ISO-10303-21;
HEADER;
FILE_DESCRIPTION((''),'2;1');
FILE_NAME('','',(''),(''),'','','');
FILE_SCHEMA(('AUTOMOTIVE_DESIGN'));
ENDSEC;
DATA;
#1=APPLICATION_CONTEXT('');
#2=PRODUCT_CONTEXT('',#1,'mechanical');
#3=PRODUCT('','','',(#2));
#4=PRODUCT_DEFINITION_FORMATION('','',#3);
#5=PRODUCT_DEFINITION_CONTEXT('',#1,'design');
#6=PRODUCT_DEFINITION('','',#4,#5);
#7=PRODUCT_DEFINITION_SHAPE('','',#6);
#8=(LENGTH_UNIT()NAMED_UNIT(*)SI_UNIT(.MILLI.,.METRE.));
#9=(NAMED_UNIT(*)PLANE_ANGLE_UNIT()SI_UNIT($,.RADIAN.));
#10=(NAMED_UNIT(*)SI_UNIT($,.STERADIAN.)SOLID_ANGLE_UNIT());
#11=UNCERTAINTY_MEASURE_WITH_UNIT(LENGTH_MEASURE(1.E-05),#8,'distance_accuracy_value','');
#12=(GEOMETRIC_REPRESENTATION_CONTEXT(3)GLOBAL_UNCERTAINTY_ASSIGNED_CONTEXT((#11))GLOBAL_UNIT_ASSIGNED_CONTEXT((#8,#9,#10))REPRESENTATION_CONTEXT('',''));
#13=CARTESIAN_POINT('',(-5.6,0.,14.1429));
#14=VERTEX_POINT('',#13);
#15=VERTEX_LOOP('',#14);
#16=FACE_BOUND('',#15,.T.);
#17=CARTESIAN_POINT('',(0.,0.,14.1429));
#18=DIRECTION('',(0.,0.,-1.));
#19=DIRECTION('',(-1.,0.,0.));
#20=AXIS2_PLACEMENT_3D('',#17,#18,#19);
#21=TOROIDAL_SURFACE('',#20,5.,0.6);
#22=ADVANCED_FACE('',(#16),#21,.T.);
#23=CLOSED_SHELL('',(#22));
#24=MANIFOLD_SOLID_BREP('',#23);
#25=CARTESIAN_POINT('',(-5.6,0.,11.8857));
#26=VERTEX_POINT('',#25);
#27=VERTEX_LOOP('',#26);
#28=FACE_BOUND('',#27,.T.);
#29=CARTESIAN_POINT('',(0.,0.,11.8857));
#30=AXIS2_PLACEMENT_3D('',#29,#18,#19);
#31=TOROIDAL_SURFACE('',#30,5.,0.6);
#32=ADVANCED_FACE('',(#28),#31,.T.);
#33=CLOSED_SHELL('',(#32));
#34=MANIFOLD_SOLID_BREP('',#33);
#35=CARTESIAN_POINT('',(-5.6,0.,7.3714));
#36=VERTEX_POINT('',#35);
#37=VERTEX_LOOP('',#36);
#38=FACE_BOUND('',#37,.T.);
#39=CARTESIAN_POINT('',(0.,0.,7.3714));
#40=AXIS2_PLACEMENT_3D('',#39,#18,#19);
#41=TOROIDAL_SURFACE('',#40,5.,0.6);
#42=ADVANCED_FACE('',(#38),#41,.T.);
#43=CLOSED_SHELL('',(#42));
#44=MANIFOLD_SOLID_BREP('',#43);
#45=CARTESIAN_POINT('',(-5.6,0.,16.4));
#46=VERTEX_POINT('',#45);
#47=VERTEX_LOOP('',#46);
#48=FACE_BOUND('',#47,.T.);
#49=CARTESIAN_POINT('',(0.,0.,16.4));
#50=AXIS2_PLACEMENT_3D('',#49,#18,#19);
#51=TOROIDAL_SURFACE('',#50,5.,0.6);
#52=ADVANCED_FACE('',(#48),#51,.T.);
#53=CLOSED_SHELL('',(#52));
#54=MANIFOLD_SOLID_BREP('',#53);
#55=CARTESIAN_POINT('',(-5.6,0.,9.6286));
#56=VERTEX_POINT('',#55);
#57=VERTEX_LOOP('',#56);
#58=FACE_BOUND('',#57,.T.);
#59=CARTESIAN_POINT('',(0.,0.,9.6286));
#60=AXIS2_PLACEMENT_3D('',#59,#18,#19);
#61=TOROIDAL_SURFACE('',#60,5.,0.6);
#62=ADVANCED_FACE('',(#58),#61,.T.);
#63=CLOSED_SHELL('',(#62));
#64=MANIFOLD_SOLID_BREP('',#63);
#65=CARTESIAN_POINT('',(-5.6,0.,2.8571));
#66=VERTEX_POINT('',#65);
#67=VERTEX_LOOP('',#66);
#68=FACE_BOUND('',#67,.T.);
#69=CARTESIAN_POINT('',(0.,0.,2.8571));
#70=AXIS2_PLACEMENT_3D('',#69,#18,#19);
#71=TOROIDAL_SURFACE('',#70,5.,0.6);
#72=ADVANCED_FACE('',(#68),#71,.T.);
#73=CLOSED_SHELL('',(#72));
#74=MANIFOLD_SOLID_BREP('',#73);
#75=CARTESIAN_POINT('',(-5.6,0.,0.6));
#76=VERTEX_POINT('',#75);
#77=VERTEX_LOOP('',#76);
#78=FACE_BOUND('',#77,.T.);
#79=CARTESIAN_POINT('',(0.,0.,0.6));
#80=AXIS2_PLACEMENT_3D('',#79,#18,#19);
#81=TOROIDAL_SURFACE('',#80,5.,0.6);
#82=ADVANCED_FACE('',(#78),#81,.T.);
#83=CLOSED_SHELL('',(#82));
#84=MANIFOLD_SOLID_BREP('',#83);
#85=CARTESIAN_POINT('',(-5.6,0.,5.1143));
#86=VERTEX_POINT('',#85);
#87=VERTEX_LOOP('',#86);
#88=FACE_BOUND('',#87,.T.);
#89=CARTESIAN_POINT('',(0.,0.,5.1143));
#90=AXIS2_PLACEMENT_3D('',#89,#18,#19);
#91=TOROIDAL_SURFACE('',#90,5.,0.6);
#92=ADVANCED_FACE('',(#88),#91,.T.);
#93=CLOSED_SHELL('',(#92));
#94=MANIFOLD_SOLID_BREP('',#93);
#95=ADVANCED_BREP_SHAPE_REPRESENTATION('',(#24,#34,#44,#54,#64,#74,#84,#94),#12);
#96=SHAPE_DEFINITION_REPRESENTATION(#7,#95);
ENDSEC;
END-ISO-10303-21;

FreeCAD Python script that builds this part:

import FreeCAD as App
import Part
import Sketcher
Q = App.Units.Quantity

doc = App.newDocument("Part")
body = doc.addObject("PartDesign::Body", "Body")
body.AllowCompound = True

sketch1 = doc.addObject("Sketcher::SketchObject", "Sketch")
body.addObject(sketch1)
sketch1.AttachmentSupport = (doc.XZ_Plane, [""])
sketch1.MapMode = "FlatFace"
sketch1.addGeometry([
    Part.Circle(App.Vector(5, 0.6, 0), App.Vector(0, 0, 1), 0.6),
    Part.Circle(App.Vector(5, 2.9, 0), App.Vector(0, 0, 1), 0.6),
    Part.Circle(App.Vector(5, 5.1, 0), App.Vector(0, 0, 1), 0.6),
    Part.Circle(App.Vector(5, 7.4, 0), App.Vector(0, 0, 1), 0.6),
    Part.Circle(App.Vector(5, 9.6, 0), App.Vector(0, 0, 1), 0.6),
    Part.Circle(App.Vector(5, 11.9, 0), App.Vector(0, 0, 1), 0.6),
    Part.Circle(App.Vector(5, 14.1, 0), App.Vector(0, 0, 1), 0.6),
    Part.Circle(App.Vector(5, 16.4, 0), App.Vector(0, 0, 1), 0.6),
], False)
sketch1.addConstraint([
    Sketcher.Constraint("Equal", 0, 1),
    Sketcher.Constraint("Equal", 1, 2),
    Sketcher.Constraint("Equal", 2, 3),
    Sketcher.Constraint("Equal", 3, 4),
    Sketcher.Constraint("Equal", 4, 5),
    Sketcher.Constraint("Equal", 5, 6),
    Sketcher.Constraint("Equal", 6, 7),
    Sketcher.Constraint("Vertical", 0, 3, 1, 3),
    Sketcher.Constraint("Vertical", 1, 3, 2, 3),
    Sketcher.Constraint("Vertical", 2, 3, 3, 3),
    Sketcher.Constraint("Vertical", 3, 3, 4, 3),
    Sketcher.Constraint("Vertical", 4, 3, 5, 3),
    Sketcher.Constraint("Vertical", 5, 3, 6, 3),
    Sketcher.Constraint("Vertical", 6, 3, 7, 3),
    Sketcher.Constraint("Diameter", 0, Q("1.2 mm")),
    Sketcher.Constraint("DistanceX", -1, 1, 0, 3, Q("5 mm")),
    Sketcher.Constraint("DistanceY", -1, 1, 0, 3, Q("0.6 mm")),
    Sketcher.Constraint("DistanceY", -1, 1, 7, 3, Q("16.4 mm")),
    Sketcher.Constraint("DistanceY", -1, 1, 1, 3, Q("2.8571 mm")),
    Sketcher.Constraint("DistanceY", -1, 1, 2, 3, Q("5.1143 mm")),
    Sketcher.Constraint("DistanceY", -1, 1, 3, 3, Q("7.3714 mm")),
    Sketcher.Constraint("DistanceY", -1, 1, 4, 3, Q("9.6286 mm")),
    Sketcher.Constraint("DistanceY", -1, 1, 5, 3, Q("11.8857 mm")),
    Sketcher.Constraint("DistanceY", -1, 1, 6, 3, Q("14.1429 mm")),
])
revolution = doc.addObject("PartDesign::Revolution", "Revolution")
body.addObject(revolution)
revolution.Profile = sketch1
revolution.ReferenceAxis = (sketch1, ["V_Axis"])
revolution.Angle = 360

doc.recompute()
